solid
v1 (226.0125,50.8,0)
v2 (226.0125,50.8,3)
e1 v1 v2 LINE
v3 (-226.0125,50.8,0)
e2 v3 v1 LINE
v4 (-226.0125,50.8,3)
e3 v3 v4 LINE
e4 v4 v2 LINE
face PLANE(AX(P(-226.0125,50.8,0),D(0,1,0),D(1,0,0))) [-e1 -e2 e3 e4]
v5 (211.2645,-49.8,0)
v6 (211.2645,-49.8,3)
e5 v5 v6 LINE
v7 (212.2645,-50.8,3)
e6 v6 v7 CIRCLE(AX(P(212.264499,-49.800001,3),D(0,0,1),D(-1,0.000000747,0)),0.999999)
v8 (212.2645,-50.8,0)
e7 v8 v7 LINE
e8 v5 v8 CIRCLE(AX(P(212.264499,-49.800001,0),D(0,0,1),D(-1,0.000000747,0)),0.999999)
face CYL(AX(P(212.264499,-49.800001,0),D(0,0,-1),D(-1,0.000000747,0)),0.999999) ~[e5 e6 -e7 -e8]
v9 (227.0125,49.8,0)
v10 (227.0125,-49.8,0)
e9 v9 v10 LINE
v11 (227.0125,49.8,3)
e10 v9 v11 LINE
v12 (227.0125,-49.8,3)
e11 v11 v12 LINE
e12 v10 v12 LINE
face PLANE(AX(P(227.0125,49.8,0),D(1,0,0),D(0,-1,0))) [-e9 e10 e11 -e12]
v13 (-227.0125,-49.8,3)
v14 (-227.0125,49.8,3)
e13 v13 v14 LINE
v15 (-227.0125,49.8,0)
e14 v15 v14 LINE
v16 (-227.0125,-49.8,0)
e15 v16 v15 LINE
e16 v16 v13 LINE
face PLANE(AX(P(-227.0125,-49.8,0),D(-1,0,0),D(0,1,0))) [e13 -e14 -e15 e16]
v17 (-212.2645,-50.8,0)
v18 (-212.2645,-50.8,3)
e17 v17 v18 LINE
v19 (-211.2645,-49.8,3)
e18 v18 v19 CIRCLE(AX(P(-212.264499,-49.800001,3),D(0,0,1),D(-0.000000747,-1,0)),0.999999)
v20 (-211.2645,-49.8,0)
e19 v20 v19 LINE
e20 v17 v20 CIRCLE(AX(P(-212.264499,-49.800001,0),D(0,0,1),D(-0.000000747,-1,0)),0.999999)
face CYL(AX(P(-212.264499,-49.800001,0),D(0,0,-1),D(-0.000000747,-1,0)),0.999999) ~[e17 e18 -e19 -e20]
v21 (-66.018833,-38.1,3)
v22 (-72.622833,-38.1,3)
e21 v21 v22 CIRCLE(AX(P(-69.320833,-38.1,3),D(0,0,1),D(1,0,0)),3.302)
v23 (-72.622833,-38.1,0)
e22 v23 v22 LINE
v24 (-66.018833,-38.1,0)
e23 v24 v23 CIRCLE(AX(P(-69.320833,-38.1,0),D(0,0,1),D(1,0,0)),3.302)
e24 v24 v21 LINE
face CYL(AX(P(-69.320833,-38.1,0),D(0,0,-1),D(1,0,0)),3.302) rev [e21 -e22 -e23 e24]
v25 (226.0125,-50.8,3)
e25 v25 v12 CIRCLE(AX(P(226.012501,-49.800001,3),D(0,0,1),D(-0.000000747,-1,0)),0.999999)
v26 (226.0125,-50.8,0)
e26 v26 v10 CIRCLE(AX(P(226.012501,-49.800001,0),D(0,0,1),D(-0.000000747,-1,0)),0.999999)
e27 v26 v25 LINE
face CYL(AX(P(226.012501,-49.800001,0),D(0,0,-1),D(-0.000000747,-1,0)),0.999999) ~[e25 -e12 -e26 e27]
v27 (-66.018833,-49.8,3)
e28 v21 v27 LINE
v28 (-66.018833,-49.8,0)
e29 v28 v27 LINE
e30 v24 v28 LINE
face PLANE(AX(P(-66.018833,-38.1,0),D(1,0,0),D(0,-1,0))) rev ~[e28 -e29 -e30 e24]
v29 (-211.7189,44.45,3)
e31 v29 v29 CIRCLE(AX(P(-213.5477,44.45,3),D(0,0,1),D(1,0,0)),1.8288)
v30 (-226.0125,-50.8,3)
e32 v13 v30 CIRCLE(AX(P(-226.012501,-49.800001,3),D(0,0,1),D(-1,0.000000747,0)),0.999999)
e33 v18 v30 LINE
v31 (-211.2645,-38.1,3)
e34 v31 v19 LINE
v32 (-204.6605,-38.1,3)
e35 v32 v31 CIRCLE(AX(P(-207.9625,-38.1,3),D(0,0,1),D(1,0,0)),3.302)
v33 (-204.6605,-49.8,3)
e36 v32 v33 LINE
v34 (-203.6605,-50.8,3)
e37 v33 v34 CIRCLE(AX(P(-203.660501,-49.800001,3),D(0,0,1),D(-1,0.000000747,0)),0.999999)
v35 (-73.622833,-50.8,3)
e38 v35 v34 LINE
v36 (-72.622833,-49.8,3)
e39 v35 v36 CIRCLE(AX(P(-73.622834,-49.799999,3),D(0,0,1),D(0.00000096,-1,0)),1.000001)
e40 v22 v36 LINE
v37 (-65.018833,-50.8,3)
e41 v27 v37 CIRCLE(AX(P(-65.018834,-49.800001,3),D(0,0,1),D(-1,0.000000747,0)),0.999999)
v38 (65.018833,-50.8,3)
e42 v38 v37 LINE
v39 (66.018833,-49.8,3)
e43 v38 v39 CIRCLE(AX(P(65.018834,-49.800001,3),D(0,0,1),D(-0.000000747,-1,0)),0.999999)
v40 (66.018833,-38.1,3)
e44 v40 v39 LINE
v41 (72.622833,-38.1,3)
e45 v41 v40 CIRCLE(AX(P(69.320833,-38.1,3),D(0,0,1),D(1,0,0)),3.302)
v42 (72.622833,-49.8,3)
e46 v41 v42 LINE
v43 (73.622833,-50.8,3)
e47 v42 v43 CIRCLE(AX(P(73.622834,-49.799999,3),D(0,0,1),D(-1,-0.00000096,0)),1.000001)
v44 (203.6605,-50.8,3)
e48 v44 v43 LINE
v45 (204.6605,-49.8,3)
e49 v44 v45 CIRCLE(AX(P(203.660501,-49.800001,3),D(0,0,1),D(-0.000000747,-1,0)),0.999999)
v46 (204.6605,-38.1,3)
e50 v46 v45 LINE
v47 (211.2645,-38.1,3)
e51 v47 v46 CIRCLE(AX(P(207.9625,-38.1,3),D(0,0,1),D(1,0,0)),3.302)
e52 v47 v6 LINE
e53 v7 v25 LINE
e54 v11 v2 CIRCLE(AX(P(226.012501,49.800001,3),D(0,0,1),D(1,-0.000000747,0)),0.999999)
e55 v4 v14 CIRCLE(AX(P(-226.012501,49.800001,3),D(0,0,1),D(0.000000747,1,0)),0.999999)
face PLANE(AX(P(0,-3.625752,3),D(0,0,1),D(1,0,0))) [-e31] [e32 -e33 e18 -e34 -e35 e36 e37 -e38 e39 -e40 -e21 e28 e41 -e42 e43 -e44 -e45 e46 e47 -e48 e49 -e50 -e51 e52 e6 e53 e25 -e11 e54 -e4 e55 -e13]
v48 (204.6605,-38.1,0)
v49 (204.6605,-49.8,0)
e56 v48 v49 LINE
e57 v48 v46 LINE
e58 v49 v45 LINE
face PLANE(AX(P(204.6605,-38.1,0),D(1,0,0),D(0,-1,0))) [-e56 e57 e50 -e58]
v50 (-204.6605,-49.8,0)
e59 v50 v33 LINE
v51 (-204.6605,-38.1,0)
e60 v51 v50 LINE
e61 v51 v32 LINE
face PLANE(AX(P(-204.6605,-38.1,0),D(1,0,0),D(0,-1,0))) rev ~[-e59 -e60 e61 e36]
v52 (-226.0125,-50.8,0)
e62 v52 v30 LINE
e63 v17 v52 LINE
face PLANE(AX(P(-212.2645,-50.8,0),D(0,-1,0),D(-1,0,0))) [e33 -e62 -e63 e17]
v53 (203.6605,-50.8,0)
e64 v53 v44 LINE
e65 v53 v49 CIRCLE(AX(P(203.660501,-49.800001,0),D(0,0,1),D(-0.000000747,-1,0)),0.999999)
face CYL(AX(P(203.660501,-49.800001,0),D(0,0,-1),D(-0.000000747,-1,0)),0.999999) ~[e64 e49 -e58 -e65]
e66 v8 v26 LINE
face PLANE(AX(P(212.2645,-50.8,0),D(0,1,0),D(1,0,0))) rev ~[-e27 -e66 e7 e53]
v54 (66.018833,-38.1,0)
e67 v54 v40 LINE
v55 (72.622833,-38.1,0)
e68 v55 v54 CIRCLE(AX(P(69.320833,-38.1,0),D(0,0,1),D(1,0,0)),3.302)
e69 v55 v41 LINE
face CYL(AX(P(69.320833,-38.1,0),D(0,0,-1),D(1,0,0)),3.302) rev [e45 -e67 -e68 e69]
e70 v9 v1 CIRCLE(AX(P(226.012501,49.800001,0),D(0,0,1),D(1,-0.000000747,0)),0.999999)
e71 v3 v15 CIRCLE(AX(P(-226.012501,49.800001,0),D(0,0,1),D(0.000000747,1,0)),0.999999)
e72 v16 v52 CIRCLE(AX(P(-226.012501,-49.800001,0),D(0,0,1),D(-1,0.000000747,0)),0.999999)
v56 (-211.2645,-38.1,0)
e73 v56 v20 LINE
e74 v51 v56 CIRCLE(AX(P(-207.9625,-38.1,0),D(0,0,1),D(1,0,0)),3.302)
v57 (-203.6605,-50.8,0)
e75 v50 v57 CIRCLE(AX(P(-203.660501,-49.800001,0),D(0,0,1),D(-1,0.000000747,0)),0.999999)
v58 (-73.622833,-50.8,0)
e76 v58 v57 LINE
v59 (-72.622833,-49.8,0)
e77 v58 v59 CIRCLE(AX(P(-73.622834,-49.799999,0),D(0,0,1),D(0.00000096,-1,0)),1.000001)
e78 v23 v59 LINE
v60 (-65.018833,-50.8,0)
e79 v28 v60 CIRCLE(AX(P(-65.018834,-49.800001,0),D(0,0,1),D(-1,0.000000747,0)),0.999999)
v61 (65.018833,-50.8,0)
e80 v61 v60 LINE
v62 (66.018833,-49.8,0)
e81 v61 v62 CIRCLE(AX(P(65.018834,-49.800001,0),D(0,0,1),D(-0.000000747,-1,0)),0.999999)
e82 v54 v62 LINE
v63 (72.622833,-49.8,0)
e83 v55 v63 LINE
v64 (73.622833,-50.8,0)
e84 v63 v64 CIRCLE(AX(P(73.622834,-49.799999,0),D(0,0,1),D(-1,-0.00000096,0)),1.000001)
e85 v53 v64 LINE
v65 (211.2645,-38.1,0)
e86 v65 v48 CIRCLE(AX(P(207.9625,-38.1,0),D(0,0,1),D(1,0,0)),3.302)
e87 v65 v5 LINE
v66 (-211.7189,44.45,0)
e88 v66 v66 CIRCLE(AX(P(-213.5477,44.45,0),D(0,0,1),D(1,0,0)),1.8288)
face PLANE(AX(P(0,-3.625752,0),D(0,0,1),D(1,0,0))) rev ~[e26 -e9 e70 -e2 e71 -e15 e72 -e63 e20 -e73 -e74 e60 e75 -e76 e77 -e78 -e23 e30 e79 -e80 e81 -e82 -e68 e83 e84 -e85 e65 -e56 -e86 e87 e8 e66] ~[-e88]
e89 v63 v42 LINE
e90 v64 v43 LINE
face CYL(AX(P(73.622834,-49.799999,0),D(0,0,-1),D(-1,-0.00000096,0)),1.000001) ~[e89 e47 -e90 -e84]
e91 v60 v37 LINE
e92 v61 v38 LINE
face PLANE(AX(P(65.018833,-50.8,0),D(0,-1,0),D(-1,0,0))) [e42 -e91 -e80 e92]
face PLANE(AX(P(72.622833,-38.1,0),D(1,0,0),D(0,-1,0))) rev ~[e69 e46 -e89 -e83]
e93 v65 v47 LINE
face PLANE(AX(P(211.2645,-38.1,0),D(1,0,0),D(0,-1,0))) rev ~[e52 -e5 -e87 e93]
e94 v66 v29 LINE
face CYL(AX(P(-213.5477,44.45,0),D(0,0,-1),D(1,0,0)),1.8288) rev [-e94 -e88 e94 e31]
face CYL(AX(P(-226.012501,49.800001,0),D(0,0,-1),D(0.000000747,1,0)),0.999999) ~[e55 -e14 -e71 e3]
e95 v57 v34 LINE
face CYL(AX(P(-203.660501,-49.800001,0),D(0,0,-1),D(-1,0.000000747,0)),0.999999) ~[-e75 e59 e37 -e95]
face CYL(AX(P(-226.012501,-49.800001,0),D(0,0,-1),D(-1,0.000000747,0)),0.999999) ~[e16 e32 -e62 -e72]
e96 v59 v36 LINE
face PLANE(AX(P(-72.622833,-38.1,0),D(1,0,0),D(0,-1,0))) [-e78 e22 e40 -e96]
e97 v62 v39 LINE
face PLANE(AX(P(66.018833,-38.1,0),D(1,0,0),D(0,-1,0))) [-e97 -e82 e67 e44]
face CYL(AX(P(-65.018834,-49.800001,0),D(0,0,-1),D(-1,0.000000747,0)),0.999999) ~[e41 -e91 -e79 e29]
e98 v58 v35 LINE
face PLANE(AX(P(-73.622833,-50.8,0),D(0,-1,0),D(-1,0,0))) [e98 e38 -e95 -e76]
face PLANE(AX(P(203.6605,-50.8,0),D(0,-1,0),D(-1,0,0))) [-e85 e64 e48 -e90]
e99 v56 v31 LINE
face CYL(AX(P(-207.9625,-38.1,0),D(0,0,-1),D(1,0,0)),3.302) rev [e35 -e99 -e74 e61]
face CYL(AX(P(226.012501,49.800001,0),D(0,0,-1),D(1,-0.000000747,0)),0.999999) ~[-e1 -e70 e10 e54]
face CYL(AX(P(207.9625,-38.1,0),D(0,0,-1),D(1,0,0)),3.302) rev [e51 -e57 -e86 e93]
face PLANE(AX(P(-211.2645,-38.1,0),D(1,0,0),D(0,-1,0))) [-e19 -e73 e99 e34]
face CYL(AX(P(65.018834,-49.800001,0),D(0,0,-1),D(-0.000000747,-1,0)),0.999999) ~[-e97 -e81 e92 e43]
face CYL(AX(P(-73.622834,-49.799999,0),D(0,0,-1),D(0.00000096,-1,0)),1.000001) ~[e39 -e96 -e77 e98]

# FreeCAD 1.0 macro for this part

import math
import FreeCAD as App
import Part
import Sketcher

V = App.Vector
Q = App.Units.Quantity

doc = App.newDocument("Part")
params = doc.addObject("Spreadsheet::Sheet", "Params")
for row, (alias, value) in enumerate([
    ("sketch1_radius", "0.999999 mm"),
    ("sketch1_height", "99.6 mm"),
    ("sketch1_height2", "11.7 mm"),
    ("pad1_length", "3 mm"),
], start=1):
    params.set(f"A{row}", alias)
    params.set(f"B{row}", "=" + value)
    params.setAlias(f"B{row}", alias)

body = doc.addObject("PartDesign::Body", "Body")

# Sketch on XY plane
sketch1 = body.newObject("Sketcher::SketchObject", "Sketch")
sketch1.AttachmentSupport = (doc.getObject("XY_Plane"), [""])
sketch1.MapMode = "FlatFace"
sketch1.addGeometry(Part.ArcOfCircle(Part.Circle(V(-226.012501, 49.800001, 0), V(0, 0, 1), 0.999999), math.radians(89.999957), math.radians(180.000043)), False)
sketch1.addGeometry(Part.LineSegment(V(-227.0125, 49.8, 0), V(-227.0125, -49.8, 0)), False)
sketch1.addGeometry(Part.ArcOfCircle(Part.Circle(V(-226.012501, -49.800001, 0), V(0, 0, 1), 0.999999), math.radians(179.999957), math.radians(270.000043)), False)
sketch1.addGeometry(Part.LineSegment(V(-226.0125, -50.8, 0), V(-212.2645, -50.8, 0)), False)
sketch1.addGeometry(Part.ArcOfCircle(Part.Circle(V(-212.264499, -49.800001, 0), V(0, 0, 1), 0.999999), math.radians(-90.000043), math.radians(0.000043)), False)
sketch1.addGeometry(Part.LineSegment(V(-211.2645, -49.8, 0), V(-211.2645, -38.1, 0)), False)
sketch1.addGeometry(Part.ArcOfCircle(Part.Circle(V(-207.9625, -38.1, 0), V(0, 0, 1), 3.302), math.radians(0), math.radians(180)), False)
sketch1.addGeometry(Part.LineSegment(V(-204.6605, -38.1, 0), V(-204.6605, -49.8, 0)), False)
sketch1.addGeometry(Part.ArcOfCircle(Part.Circle(V(-203.660501, -49.800001, 0), V(0, 0, 1), 0.999999), math.radians(179.999957), math.radians(270.000043)), False)
sketch1.addGeometry(Part.LineSegment(V(-203.6605, -50.8, 0), V(-73.622833, -50.8, 0)), False)
sketch1.addGeometry(Part.ArcOfCircle(Part.Circle(V(-73.622834, -49.799999, 0), V(0, 0, 1), 1.000001), math.radians(-89.999945), math.radians(-0.000055)), False)
sketch1.addGeometry(Part.LineSegment(V(-72.622833, -49.8, 0), V(-72.622833, -38.1, 0)), False)
sketch1.addGeometry(Part.ArcOfCircle(Part.Circle(V(-69.320833, -38.1, 0), V(0, 0, 1), 3.302), math.radians(0), math.radians(180)), False)
sketch1.addGeometry(Part.LineSegment(V(-66.018833, -38.1, 0), V(-66.018833, -49.8, 0)), False)
sketch1.addGeometry(Part.ArcOfCircle(Part.Circle(V(-65.018834, -49.800001, 0), V(0, 0, 1), 0.999999), math.radians(179.999957), math.radians(270.000043)), False)
sketch1.addGeometry(Part.LineSegment(V(-65.018833, -50.8, 0), V(65.018833, -50.8, 0)), False)
sketch1.addGeometry(Part.ArcOfCircle(Part.Circle(V(65.018834, -49.800001, 0), V(0, 0, 1), 0.999999), math.radians(-90.000043), math.radians(0.000043)), False)
sketch1.addGeometry(Part.LineSegment(V(66.018833, -49.8, 0), V(66.018833, -38.1, 0)), False)
sketch1.addGeometry(Part.ArcOfCircle(Part.Circle(V(69.320833, -38.1, 0), V(0, 0, 1), 3.302), math.radians(0), math.radians(180)), False)
sketch1.addGeometry(Part.LineSegment(V(72.622833, -38.1, 0), V(72.622833, -49.8, 0)), False)
sketch1.addGeometry(Part.ArcOfCircle(Part.Circle(V(73.622834, -49.799999, 0), V(0, 0, 1), 1.000001), math.radians(-179.999945), math.radians(-90.000055)), False)
sketch1.addGeometry(Part.LineSegment(V(73.622833, -50.8, 0), V(203.6605, -50.8, 0)), False)
sketch1.addGeometry(Part.ArcOfCircle(Part.Circle(V(203.660501, -49.800001, 0), V(0, 0, 1), 0.999999), math.radians(-90.000043), math.radians(0.000043)), False)
sketch1.addGeometry(Part.LineSegment(V(204.6605, -49.8, 0), V(204.6605, -38.1, 0)), False)
sketch1.addGeometry(Part.ArcOfCircle(Part.Circle(V(207.9625, -38.1, 0), V(0, 0, 1), 3.302), math.radians(0), math.radians(180)), False)
sketch1.addGeometry(Part.LineSegment(V(211.2645, -38.1, 0), V(211.2645, -49.8, 0)), False)
sketch1.addGeometry(Part.ArcOfCircle(Part.Circle(V(212.264499, -49.800001, 0), V(0, 0, 1), 0.999999), math.radians(179.999957), math.radians(270.000043)), False)
sketch1.addGeometry(Part.LineSegment(V(212.2645, -50.8, 0), V(226.0125, -50.8, 0)), False)
sketch1.addGeometry(Part.ArcOfCircle(Part.Circle(V(226.012501, -49.800001, 0), V(0, 0, 1), 0.999999), math.radians(-90.000043), math.radians(0.000043)), False)
sketch1.addGeometry(Part.LineSegment(V(227.0125, -49.8, 0), V(227.0125, 49.8, 0)), False)
sketch1.addGeometry(Part.ArcOfCircle(Part.Circle(V(226.012501, 49.800001, 0), V(0, 0, 1), 0.999999), math.radians(-0.000043), math.radians(90.000043)), False)
sketch1.addGeometry(Part.LineSegment(V(226.0125, 50.8, 0), V(-226.0125, 50.8, 0)), False)
sketch1.addGeometry(Part.Circle(V(-213.5477, 44.45, 0), V(0, 0, 1), 1.8288), False)
sketch1.addConstraint(Sketcher.Constraint("Tangent", 0, 2, 1, 1))
sketch1.addConstraint(Sketcher.Constraint("Tangent", 1, 2, 2, 1))
sketch1.addConstraint(Sketcher.Constraint("Tangent", 2, 2, 3, 1))
sketch1.addConstraint(Sketcher.Constraint("Tangent", 3, 2, 4, 1))
sketch1.addConstraint(Sketcher.Constraint("Tangent", 4, 2, 5, 1))
sketch1.addConstraint(Sketcher.Constraint("Tangent", 5, 2, 6, 2))
sketch1.addConstraint(Sketcher.Constraint("Tangent", 6, 1, 7, 1))
sketch1.addConstraint(Sketcher.Constraint("Tangent", 7, 2, 8, 1))
sketch1.addConstraint(Sketcher.Constraint("Tangent", 8, 2, 9, 1))
sketch1.addConstraint(Sketcher.Constraint("Tangent", 9, 2, 10, 1))
sketch1.addConstraint(Sketcher.Constraint("Tangent", 10, 2, 11, 1))
sketch1.addConstraint(Sketcher.Constraint("Tangent", 11, 2, 12, 2))
sketch1.addConstraint(Sketcher.Constraint("Tangent", 12, 1, 13, 1))
sketch1.addConstraint(Sketcher.Constraint("Tangent", 13, 2, 14, 1))
sketch1.addConstraint(Sketcher.Constraint("Tangent", 14, 2, 15, 1))
sketch1.addConstraint(Sketcher.Constraint("Tangent", 15, 2, 16, 1))
sketch1.addConstraint(Sketcher.Constraint("Tangent", 16, 2, 17, 1))
sketch1.addConstraint(Sketcher.Constraint("Tangent", 17, 2, 18, 2))
sketch1.addConstraint(Sketcher.Constraint("Tangent", 18, 1, 19, 1))
sketch1.addConstraint(Sketcher.Constraint("Tangent", 19, 2, 20, 1))
sketch1.addConstraint(Sketcher.Constraint("Tangent", 20, 2, 21, 1))
sketch1.addConstraint(Sketcher.Constraint("Tangent", 21, 2, 22, 1))
sketch1.addConstraint(Sketcher.Constraint("Tangent", 22, 2, 23, 1))
sketch1.addConstraint(Sketcher.Constraint("Tangent", 23, 2, 24, 2))
sketch1.addConstraint(Sketcher.Constraint("Tangent", 24, 1, 25, 1))
sketch1.addConstraint(Sketcher.Constraint("Tangent", 25, 2, 26, 1))
sketch1.addConstraint(Sketcher.Constraint("Tangent", 26, 2, 27, 1))
sketch1.addConstraint(Sketcher.Constraint("Tangent", 27, 2, 28, 1))
sketch1.addConstraint(Sketcher.Constraint("Tangent", 28, 2, 29, 1))
sketch1.addConstraint(Sketcher.Constraint("Tangent", 29, 2, 30, 1))
sketch1.addConstraint(Sketcher.Constraint("Tangent", 30, 2, 31, 1))
sketch1.addConstraint(Sketcher.Constraint("Tangent", 31, 2, 0, 1))
sketch1.addConstraint(Sketcher.Constraint("Vertical", 1))
sketch1.addConstraint(Sketcher.Constraint("Horizontal", 3))
sketch1.addConstraint(Sketcher.Constraint("Vertical", 5))
sketch1.addConstraint(Sketcher.Constraint("Vertical", 7))
sketch1.addConstraint(Sketcher.Constraint("Horizontal", 9))
sketch1.addConstraint(Sketcher.Constraint("Vertical", 11))
sketch1.addConstraint(Sketcher.Constraint("Vertical", 13))
sketch1.addConstraint(Sketcher.Constraint("Horizontal", 15))
sketch1.addConstraint(Sketcher.Constraint("Vertical", 17))
sketch1.addConstraint(Sketcher.Constraint("Vertical", 19))
sketch1.addConstraint(Sketcher.Constraint("Horizontal", 21))
sketch1.addConstraint(Sketcher.Constraint("Vertical", 23))
sketch1.addConstraint(Sketcher.Constraint("Vertical", 25))
sketch1.addConstraint(Sketcher.Constraint("Horizontal", 27))
sketch1.addConstraint(Sketcher.Constraint("Vertical", 29))
sketch1.addConstraint(Sketcher.Constraint("Horizontal", 31))
sketch1.addConstraint(Sketcher.Constraint("Equal", 0, 2))
sketch1.addConstraint(Sketcher.Constraint("Equal", 2, 4))
sketch1.addConstraint(Sketcher.Constraint("Equal", 4, 8))
sketch1.addConstraint(Sketcher.Constraint("Equal", 8, 10))
sketch1.addConstraint(Sketcher.Constraint("Equal", 6, 12))
sketch1.addConstraint(Sketcher.Constraint("Equal", 10, 14))
sketch1.addConstraint(Sketcher.Constraint("Equal", 14, 16))
sketch1.addConstraint(Sketcher.Constraint("Equal", 12, 18))
sketch1.addConstraint(Sketcher.Constraint("Equal", 16, 20))
sketch1.addConstraint(Sketcher.Constraint("Equal", 20, 22))
sketch1.addConstraint(Sketcher.Constraint("Equal", 18, 24))
sketch1.addConstraint(Sketcher.Constraint("Equal", 22, 26))
sketch1.addConstraint(Sketcher.Constraint("Equal", 26, 28))
sketch1.addConstraint(Sketcher.Constraint("Equal", 28, 30))
sketch1.addConstraint(Sketcher.Constraint("Symmetric", 0, 3, 28, 3, -1, 1))
sketch1.addConstraint(Sketcher.Constraint("Symmetric", 12, 3, 18, 3, -2))
sketch1.addConstraint(Sketcher.Constraint("Symmetric", 8, 3, 22, 3, -2))
sketch1.addConstraint(Sketcher.Constraint("Horizontal", 4, 3, 8, 3))
sketch1.addConstraint(Sketcher.Constraint("Horizontal", 6, 3, 12, 3))
sketch1.addConstraint(Sketcher.Constraint("Horizontal", 10, 3, 14, 3))
sketch1.addConstraint(Sketcher.Constraint("Horizontal", 18, 3, 24, 3))
sketch1.addConstraint(Sketcher.Constraint("Horizontal", 22, 3, 26, 3))
sketch1.addConstraint(Sketcher.Constraint("Equal", 9, 15))
sketch1.addConstraint(Sketcher.Constraint("Radius", 0, Q("0.999999 mm")))
sketch1.addConstraint(Sketcher.Constraint("DistanceY", 1, 2, 1, 1, Q("99.6 mm")))
sketch1.addConstraint(Sketcher.Constraint("DistanceY", 5, 1, 5, 2, Q("11.7 mm")))
sketch1.addConstraint(Sketcher.Constraint("Radius", 6, Q("3.302 mm")))
sketch1.addConstraint(Sketcher.Constraint("Diameter", 32, Q("3.6576 mm")))
sketch1.addConstraint(Sketcher.Constraint("DistanceX", 3, 1, 3, 2, Q("13.748 mm")))
sketch1.addConstraint(Sketcher.Constraint("DistanceX", 31, 2, 31, 1, Q("452.025 mm")))
sketch1.addConstraint(Sketcher.Constraint("DistanceY", -1, 1, 32, 3, Q("44.45 mm")))
sketch1.addConstraint(Sketcher.Constraint("DistanceX", 32, 3, -1, 1, Q("213.5477 mm")))
sketch1.setExpression("Constraints[71]", "Params.sketch1_radius")
sketch1.setExpression("Constraints[72]", "Params.sketch1_height")
sketch1.setExpression("Constraints[73]", "Params.sketch1_height2")
pad1 = body.newObject("PartDesign::Pad", "Pad")
pad1.Profile = sketch1
pad1.setExpression("Length", "Params.pad1_length")

doc.recompute()
